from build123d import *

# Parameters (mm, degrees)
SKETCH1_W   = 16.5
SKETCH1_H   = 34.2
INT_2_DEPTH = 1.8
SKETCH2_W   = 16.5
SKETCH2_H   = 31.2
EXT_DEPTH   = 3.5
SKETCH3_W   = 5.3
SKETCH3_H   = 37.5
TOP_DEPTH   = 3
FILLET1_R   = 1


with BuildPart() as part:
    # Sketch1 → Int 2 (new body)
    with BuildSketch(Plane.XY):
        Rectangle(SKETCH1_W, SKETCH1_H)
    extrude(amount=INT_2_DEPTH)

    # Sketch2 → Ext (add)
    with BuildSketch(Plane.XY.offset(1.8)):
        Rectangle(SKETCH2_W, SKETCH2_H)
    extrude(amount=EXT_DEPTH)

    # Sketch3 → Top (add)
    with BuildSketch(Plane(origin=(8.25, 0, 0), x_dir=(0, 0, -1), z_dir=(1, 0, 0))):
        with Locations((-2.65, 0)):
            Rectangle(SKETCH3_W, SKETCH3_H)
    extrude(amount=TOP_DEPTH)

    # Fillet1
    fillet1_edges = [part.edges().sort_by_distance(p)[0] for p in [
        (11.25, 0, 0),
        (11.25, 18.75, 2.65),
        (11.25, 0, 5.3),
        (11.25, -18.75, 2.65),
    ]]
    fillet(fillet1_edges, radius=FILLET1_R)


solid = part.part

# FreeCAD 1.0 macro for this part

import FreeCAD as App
import Part
import Sketcher


def edges_at(feature, points):
    """Names of the edges that pass closest to the given points."""
    edges = feature.Shape.Edges
    near = lambda p: min(range(len(edges)), key=lambda i: edges[i].distToShape(Part.Vertex(*p))[0])
    return sorted({f"Edge{near(p) + 1}" for p in points})

doc = App.newDocument("Part")
params = doc.addObject("Spreadsheet::Sheet", "Params")
for row, (alias, value) in enumerate([
    ("sketch1_width", "16.5 mm"),
    ("sketch1_height", "34.2 mm"),
    ("pad1_length", "1.8 mm"),
    ("sketch2_width", "16.5 mm"),
    ("sketch2_height", "31.2 mm"),
    ("pad2_length", "3.5 mm"),
    ("sketch3_width", "37.5 mm"),
    ("sketch3_height", "5.3 mm"),
    ("pad3_length", "3 mm"),
    ("fillet_radius", "1 mm"),
], start=1):
    params.set(f"A{row}", alias)
    params.set(f"B{row}", "=" + value)
    params.setAlias(f"B{row}", alias)

body = doc.addObject("PartDesign::Body", "Body")

# Sketch on XY plane
sketch1 = body.newObject("Sketcher::SketchObject", "Sketch")
sketch1.AttachmentSupport = (doc.getObject("XY_Plane"), [""])
sketch1.MapMode = "FlatFace"
sketch1.addGeometry(Part.LineSegment(App.Vector(-8, 17, 0), App.Vector(-8, -17, 0)), False)
sketch1.addGeometry(Part.LineSegment(App.Vector(-8, -17, 0), App.Vector(8, -17, 0)), False)
sketch1.addGeometry(Part.LineSegment(App.Vector(8, -17, 0), App.Vector(8, 17, 0)), False)
sketch1.addGeometry(Part.LineSegment(App.Vector(8, 17, 0), App.Vector(-8, 17, 0)), False)
sketch1.addConstraint(Sketcher.Constraint("Coincident", 0, 2, 1, 1))
sketch1.addConstraint(Sketcher.Constraint("Coincident", 1, 2, 2, 1))
sketch1.addConstraint(Sketcher.Constraint("Coincident", 2, 2, 3, 1))
sketch1.addConstraint(Sketcher.Constraint("Coincident", 3, 2, 0, 1))
sketch1.addConstraint(Sketcher.Constraint("Vertical", 0))
sketch1.addConstraint(Sketcher.Constraint("Horizontal", 1))
sketch1.addConstraint(Sketcher.Constraint("Vertical", 2))
sketch1.addConstraint(Sketcher.Constraint("Horizontal", 3))
sketch1.addConstraint(Sketcher.Constraint("Symmetric", 0, 2, 2, 2, -1, 1))
sketch1.addConstraint(Sketcher.Constraint("DistanceX", 1, 1, 1, 2, 16.5))
sketch1.addConstraint(Sketcher.Constraint("DistanceY", 0, 2, 0, 1, 34.2))
sketch1.setExpression("Constraints[9]", "Params.sketch1_width")
sketch1.setExpression("Constraints[10]", "Params.sketch1_height")
pad1 = body.newObject("PartDesign::Pad", "Pad")
pad1.Profile = sketch1
pad1.setExpression("Length", "Params.pad1_length")

# Sketch on XY plane
sketch2 = body.newObject("Sketcher::SketchObject", "Sketch001")
sketch2.AttachmentSupport = (doc.getObject("XY_Plane"), [""])
sketch2.MapMode = "FlatFace"
sketch2.AttachmentOffset = App.Placement(App.Vector(0, 0, 1.8), App.Rotation())
sketch2.addGeometry(Part.LineSegment(App.Vector(-8, 16, 0), App.Vector(-8, -16, 0)), False)
sketch2.addGeometry(Part.LineSegment(App.Vector(-8, -16, 0), App.Vector(8, -16, 0)), False)
sketch2.addGeometry(Part.LineSegment(App.Vector(8, -16, 0), App.Vector(8, 16, 0)), False)
sketch2.addGeometry(Part.LineSegment(App.Vector(8, 16, 0), App.Vector(-8, 16, 0)), False)
sketch2.addConstraint(Sketcher.Constraint("Coincident", 0, 2, 1, 1))
sketch2.addConstraint(Sketcher.Constraint("Coincident", 1, 2, 2, 1))
sketch2.addConstraint(Sketcher.Constraint("Coincident", 2, 2, 3, 1))
sketch2.addConstraint(Sketcher.Constraint("Coincident", 3, 2, 0, 1))
sketch2.addConstraint(Sketcher.Constraint("Vertical", 0))
sketch2.addConstraint(Sketcher.Constraint("Horizontal", 1))
sketch2.addConstraint(Sketcher.Constraint("Vertical", 2))
sketch2.addConstraint(Sketcher.Constraint("Horizontal", 3))
sketch2.addConstraint(Sketcher.Constraint("Symmetric", 0, 2, 2, 2, -1, 1))
sketch2.addConstraint(Sketcher.Constraint("DistanceX", 1, 1, 1, 2, 16.5))
sketch2.addConstraint(Sketcher.Constraint("DistanceY", 0, 2, 0, 1, 31.2))
sketch2.setExpression("Constraints[9]", "Params.sketch2_width")
sketch2.setExpression("Constraints[10]", "Params.sketch2_height")
pad2 = body.newObject("PartDesign::Pad", "Pad001")
pad2.Profile = sketch2
pad2.setExpression("Length", "Params.pad2_length")

# Sketch on YZ plane
sketch3 = body.newObject("Sketcher::SketchObject", "Sketch002")
sketch3.AttachmentSupport = (doc.getObject("YZ_Plane"), [""])
sketch3.MapMode = "FlatFace"
sketch3.AttachmentOffset = App.Placement(App.Vector(0, 0, 8.25), App.Rotation())
sketch3.addGeometry(Part.LineSegment(App.Vector(19, 5, 0), App.Vector(-19, 5, 0)), False)
sketch3.addGeometry(Part.LineSegment(App.Vector(-19, 5, 0), App.Vector(-19, 0, 0)), False)
sketch3.addGeometry(Part.LineSegment(App.Vector(-19, 0, 0), App.Vector(19, 0, 0)), False)
sketch3.addGeometry(Part.LineSegment(App.Vector(19, 0, 0), App.Vector(19, 5, 0)), False)
sketch3.addConstraint(Sketcher.Constraint("Coincident", 0, 2, 1, 1))
sketch3.addConstraint(Sketcher.Constraint("Coincident", 1, 2, 2, 1))
sketch3.addConstraint(Sketcher.Constraint("Coincident", 2, 2, 3, 1))
sketch3.addConstraint(Sketcher.Constraint("Coincident", 3, 2, 0, 1))
sketch3.addConstraint(Sketcher.Constraint("Horizontal", 0))
sketch3.addConstraint(Sketcher.Constraint("Vertical", 1))
sketch3.addConstraint(Sketcher.Constraint("Horizontal", 2))
sketch3.addConstraint(Sketcher.Constraint("Vertical", 3))
sketch3.addConstraint(Sketcher.Constraint("Symmetric", 1, 2, 2, 2, -1, 1))
sketch3.addConstraint(Sketcher.Constraint("DistanceX", 0, 2, 0, 1, 37.5))
sketch3.addConstraint(Sketcher.Constraint("DistanceY", 1, 2, 1, 1, 5.3))
sketch3.setExpression("Constraints[9]", "Params.sketch3_width")
sketch3.setExpression("Constraints[10]", "Params.sketch3_height")
pad3 = body.newObject("PartDesign::Pad", "Pad002")
pad3.Profile = sketch3
pad3.setExpression("Length", "Params.pad3_length")
doc.recompute()

fillet = body.newObject("PartDesign::Fillet", "Fillet")
fillet.Base = (pad3, edges_at(pad3, [
    (11.25, 0, 0),
    (11.25, 18.75, 2.65),
    (11.25, 0, 5.3),
    (11.25, -18.75, 2.65),
]))
fillet.setExpression("Radius", "Params.fillet_radius")

doc.recompute()
